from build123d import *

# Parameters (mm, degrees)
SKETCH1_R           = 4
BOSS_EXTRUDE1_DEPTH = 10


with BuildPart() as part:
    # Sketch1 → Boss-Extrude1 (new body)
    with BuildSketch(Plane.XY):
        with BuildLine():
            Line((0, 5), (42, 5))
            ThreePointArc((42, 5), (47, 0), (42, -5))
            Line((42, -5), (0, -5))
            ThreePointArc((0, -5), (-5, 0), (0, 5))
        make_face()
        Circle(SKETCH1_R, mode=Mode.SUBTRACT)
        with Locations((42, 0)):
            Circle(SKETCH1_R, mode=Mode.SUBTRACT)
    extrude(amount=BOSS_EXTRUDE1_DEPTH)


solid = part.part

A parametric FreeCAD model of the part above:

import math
import FreeCAD as App
import Part
import Sketcher
from FreeCAD import Vector
Q = App.Units.Quantity

doc = App.newDocument("Part")
body = doc.addObject("PartDesign::Body", "Body")

sketch1 = doc.addObject("Sketcher::SketchObject", "Sketch")
body.addObject(sketch1)
sketch1.AttachmentSupport = (doc.XY_Plane, [""])
sketch1.MapMode = "FlatFace"
sketch1.addGeometry(Part.LineSegment(Vector(42, 5, 0), Vector(0, 5, 0)), False)
sketch1.addGeometry(Part.ArcOfCircle(Part.Circle(Vector(0, 0, 0), Vector(0, 0, 1), 5), math.radians(90), math.radians(270)), False)
sketch1.addGeometry(Part.LineSegment(Vector(0, -5, 0), Vector(42, -5, 0)), False)
sketch1.addGeometry(Part.ArcOfCircle(Part.Circle(Vector(42, 0, 0), Vector(0, 0, 1), 5), math.radians(-90), math.radians(90)), False)
sketch1.addGeometry(Part.Circle(Vector(42, 0, 0), Vector(0, 0, 1), 4), False)
sketch1.addGeometry(Part.Circle(Vector(0, 0, 0), Vector(0, 0, 1), 4), False)
sketch1.addConstraint(Sketcher.Constraint("Tangent", 0, 2, 1, 1))
sketch1.addConstraint(Sketcher.Constraint("Tangent", 1, 2, 2, 1))
sketch1.addConstraint(Sketcher.Constraint("Tangent", 2, 2, 3, 1))
sketch1.addConstraint(Sketcher.Constraint("Tangent", 3, 2, 0, 1))
sketch1.addConstraint(Sketcher.Constraint("Horizontal", 0))
sketch1.addConstraint(Sketcher.Constraint("Horizontal", 2))
sketch1.addConstraint(Sketcher.Constraint("Coincident", 1, 3, -1, 1))
sketch1.addConstraint(Sketcher.Constraint("Coincident", 5, 3, -1, 1))
sketch1.addConstraint(Sketcher.Constraint("Coincident", 4, 3, 3, 3))
sketch1.addConstraint(Sketcher.Constraint("Equal", 4, 5))
sketch1.addConstraint(Sketcher.Constraint("Diameter", 4, Q("8 mm")))
sketch1.addConstraint(Sketcher.Constraint("Radius", 1, Q("5 mm")))
sketch1.addConstraint(Sketcher.Constraint("DistanceX", 0, 2, 0, 1, Q("42 mm")))
pad1 = doc.addObject("PartDesign::Pad", "Pad")
body.addObject(pad1)
pad1.Profile = sketch1
pad1.Length = 10

doc.recompute()
